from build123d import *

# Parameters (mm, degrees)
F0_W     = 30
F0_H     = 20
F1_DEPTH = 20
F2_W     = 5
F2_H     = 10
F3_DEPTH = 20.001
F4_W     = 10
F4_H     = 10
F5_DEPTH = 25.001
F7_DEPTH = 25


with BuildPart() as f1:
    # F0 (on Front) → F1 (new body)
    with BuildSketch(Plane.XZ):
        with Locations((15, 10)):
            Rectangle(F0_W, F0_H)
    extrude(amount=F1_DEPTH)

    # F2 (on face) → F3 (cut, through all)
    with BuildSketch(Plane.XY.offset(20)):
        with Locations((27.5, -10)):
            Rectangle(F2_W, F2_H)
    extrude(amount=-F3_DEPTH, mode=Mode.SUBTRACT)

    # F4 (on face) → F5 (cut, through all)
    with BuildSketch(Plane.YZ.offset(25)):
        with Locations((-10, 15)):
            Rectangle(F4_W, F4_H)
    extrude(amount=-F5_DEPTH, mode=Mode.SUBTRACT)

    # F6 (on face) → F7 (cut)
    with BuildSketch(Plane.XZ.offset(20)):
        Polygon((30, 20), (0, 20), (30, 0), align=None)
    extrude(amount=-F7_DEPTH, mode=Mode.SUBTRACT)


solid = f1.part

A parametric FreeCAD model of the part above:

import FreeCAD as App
import Part
import Sketcher
from FreeCAD import Vector

doc = App.newDocument("Part")
body = doc.addObject("PartDesign::Body", "Body")

# Sketch on XZ plane
sketch1 = body.newObject("Sketcher::SketchObject", "Sketch")
sketch1.AttachmentSupport = (doc.getObject("XZ_Plane"), [""])
sketch1.MapMode = "FlatFace"
sketch1.addGeometry([
    Part.LineSegment(Vector(0, 20, 0), Vector(0, 0, 0)),
    Part.LineSegment(Vector(0, 0, 0), Vector(30, 0, 0)),
    Part.LineSegment(Vector(30, 0, 0), Vector(30, 20, 0)),
    Part.LineSegment(Vector(30, 20, 0), Vector(0, 20, 0)),
], False)
sketch1.addConstraint([
    Sketcher.Constraint("Coincident", 0, 2, 1, 1),
    Sketcher.Constraint("Coincident", 1, 2, 2, 1),
    Sketcher.Constraint("Coincident", 2, 2, 3, 1),
    Sketcher.Constraint("Coincident", 3, 2, 0, 1),
    Sketcher.Constraint("Vertical", 0),
    Sketcher.Constraint("Horizontal", 1),
    Sketcher.Constraint("Vertical", 2),
    Sketcher.Constraint("Horizontal", 3),
    Sketcher.Constraint("Coincident", 0, 2, -1, 1),
    Sketcher.Constraint("DistanceX", 1, 1, 1, 2, 30.0),
    Sketcher.Constraint("DistanceY", 0, 2, 0, 1, 20.0),
])
pad1 = body.newObject("PartDesign::Pad", "Pad")
pad1.Profile = sketch1
pad1.Length = 20

# Sketch on XY plane
sketch2 = body.newObject("Sketcher::SketchObject", "Sketch001")
sketch2.AttachmentSupport = (doc.getObject("XY_Plane"), [""])
sketch2.MapMode = "FlatFace"
sketch2.AttachmentOffset = App.Placement(Vector(0, 0, 20), App.Rotation())
sketch2.addGeometry([
    Part.LineSegment(Vector(25, -5, 0), Vector(25, -15, 0)),
    Part.LineSegment(Vector(25, -15, 0), Vector(30, -15, 0)),
    Part.LineSegment(Vector(30, -15, 0), Vector(30, -5, 0)),
    Part.LineSegment(Vector(30, -5, 0), Vector(25, -5, 0)),
], False)
sketch2.addConstraint([
    Sketcher.Constraint("Coincident", 0, 2, 1, 1),
    Sketcher.Constraint("Coincident", 1, 2, 2, 1),
    Sketcher.Constraint("Coincident", 2, 2, 3, 1),
    Sketcher.Constraint("Coincident", 3, 2, 0, 1),
    Sketcher.Constraint("Vertical", 0),
    Sketcher.Constraint("Horizontal", 1),
    Sketcher.Constraint("Vertical", 2),
    Sketcher.Constraint("Horizontal", 3),
    Sketcher.Constraint("DistanceX", 1, 1, 1, 2, 5.0),
    Sketcher.Constraint("DistanceY", 0, 2, 0, 1, 10.0),
    Sketcher.Constraint("DistanceX", -1, 1, 0, 2, 25.0),
    Sketcher.Constraint("DistanceY", 0, 2, -1, 1, 15.0),
])
pocket1 = body.newObject("PartDesign::Pocket", "Pocket")
pocket1.Profile = sketch2
pocket1.Type = "ThroughAll"

# Sketch on YZ plane
sketch3 = body.newObject("Sketcher::SketchObject", "Sketch002")
sketch3.AttachmentSupport = (doc.getObject("YZ_Plane"), [""])
sketch3.MapMode = "FlatFace"
sketch3.AttachmentOffset = App.Placement(Vector(0, 0, 25), App.Rotation())
sketch3.addGeometry([
    Part.LineSegment(Vector(-15, 20, 0), Vector(-15, 10, 0)),
    Part.LineSegment(Vector(-15, 10, 0), Vector(-5, 10, 0)),
    Part.LineSegment(Vector(-5, 10, 0), Vector(-5, 20, 0)),
    Part.LineSegment(Vector(-5, 20, 0), Vector(-15, 20, 0)),
], False)
sketch3.addConstraint([
    Sketcher.Constraint("Coincident", 0, 2, 1, 1),
    Sketcher.Constraint("Coincident", 1, 2, 2, 1),
    Sketcher.Constraint("Coincident", 2, 2, 3, 1),
    Sketcher.Constraint("Coincident", 3, 2, 0, 1),
    Sketcher.Constraint("Vertical", 0),
    Sketcher.Constraint("Horizontal", 1),
    Sketcher.Constraint("Vertical", 2),
    Sketcher.Constraint("Horizontal", 3),
    Sketcher.Constraint("Equal", 3, 0),
    Sketcher.Constraint("DistanceX", 1, 1, 1, 2, 10.0),
    Sketcher.Constraint("DistanceX", 0, 2, -1, 1, 15.0),
    Sketcher.Constraint("DistanceY", -1, 1, 0, 2, 10.0),
])
pocket2 = body.newObject("PartDesign::Pocket", "Pocket001")
pocket2.Profile = sketch3
pocket2.Type = "ThroughAll"

# Sketch on XZ plane
sketch4 = body.newObject("Sketcher::SketchObject", "Sketch003")
sketch4.AttachmentSupport = (doc.getObject("XZ_Plane"), [""])
sketch4.MapMode = "FlatFace"
sketch4.AttachmentOffset = App.Placement(Vector(0, 0, 20), App.Rotation())
sketch4.addGeometry([
    Part.LineSegment(Vector(30, 20, 0), Vector(0, 20, 0)),
    Part.LineSegment(Vector(0, 20, 0), Vector(30, 0, 0)),
    Part.LineSegment(Vector(30, 0, 0), Vector(30, 20, 0)),
], False)
sketch4.addConstraint([
    Sketcher.Constraint("Coincident", 0, 2, 1, 1),
    Sketcher.Constraint("Coincident", 1, 2, 2, 1),
    Sketcher.Constraint("Coincident", 2, 2, 0, 1),
    Sketcher.Constraint("Horizontal", 0),
    Sketcher.Constraint("Vertical", 2),
    Sketcher.Constraint("PointOnObject", 0, 2, -2),
    Sketcher.Constraint("PointOnObject", 1, 2, -1),
    Sketcher.Constraint("DistanceX", 0, 2, 0, 1, 30.0),
    Sketcher.Constraint("DistanceY", 2, 1, 2, 2, 20.0),
])
pocket3 = body.newObject("PartDesign::Pocket", "Pocket002")
pocket3.Profile = sketch4
pocket3.Length = 25

doc.recompute()
